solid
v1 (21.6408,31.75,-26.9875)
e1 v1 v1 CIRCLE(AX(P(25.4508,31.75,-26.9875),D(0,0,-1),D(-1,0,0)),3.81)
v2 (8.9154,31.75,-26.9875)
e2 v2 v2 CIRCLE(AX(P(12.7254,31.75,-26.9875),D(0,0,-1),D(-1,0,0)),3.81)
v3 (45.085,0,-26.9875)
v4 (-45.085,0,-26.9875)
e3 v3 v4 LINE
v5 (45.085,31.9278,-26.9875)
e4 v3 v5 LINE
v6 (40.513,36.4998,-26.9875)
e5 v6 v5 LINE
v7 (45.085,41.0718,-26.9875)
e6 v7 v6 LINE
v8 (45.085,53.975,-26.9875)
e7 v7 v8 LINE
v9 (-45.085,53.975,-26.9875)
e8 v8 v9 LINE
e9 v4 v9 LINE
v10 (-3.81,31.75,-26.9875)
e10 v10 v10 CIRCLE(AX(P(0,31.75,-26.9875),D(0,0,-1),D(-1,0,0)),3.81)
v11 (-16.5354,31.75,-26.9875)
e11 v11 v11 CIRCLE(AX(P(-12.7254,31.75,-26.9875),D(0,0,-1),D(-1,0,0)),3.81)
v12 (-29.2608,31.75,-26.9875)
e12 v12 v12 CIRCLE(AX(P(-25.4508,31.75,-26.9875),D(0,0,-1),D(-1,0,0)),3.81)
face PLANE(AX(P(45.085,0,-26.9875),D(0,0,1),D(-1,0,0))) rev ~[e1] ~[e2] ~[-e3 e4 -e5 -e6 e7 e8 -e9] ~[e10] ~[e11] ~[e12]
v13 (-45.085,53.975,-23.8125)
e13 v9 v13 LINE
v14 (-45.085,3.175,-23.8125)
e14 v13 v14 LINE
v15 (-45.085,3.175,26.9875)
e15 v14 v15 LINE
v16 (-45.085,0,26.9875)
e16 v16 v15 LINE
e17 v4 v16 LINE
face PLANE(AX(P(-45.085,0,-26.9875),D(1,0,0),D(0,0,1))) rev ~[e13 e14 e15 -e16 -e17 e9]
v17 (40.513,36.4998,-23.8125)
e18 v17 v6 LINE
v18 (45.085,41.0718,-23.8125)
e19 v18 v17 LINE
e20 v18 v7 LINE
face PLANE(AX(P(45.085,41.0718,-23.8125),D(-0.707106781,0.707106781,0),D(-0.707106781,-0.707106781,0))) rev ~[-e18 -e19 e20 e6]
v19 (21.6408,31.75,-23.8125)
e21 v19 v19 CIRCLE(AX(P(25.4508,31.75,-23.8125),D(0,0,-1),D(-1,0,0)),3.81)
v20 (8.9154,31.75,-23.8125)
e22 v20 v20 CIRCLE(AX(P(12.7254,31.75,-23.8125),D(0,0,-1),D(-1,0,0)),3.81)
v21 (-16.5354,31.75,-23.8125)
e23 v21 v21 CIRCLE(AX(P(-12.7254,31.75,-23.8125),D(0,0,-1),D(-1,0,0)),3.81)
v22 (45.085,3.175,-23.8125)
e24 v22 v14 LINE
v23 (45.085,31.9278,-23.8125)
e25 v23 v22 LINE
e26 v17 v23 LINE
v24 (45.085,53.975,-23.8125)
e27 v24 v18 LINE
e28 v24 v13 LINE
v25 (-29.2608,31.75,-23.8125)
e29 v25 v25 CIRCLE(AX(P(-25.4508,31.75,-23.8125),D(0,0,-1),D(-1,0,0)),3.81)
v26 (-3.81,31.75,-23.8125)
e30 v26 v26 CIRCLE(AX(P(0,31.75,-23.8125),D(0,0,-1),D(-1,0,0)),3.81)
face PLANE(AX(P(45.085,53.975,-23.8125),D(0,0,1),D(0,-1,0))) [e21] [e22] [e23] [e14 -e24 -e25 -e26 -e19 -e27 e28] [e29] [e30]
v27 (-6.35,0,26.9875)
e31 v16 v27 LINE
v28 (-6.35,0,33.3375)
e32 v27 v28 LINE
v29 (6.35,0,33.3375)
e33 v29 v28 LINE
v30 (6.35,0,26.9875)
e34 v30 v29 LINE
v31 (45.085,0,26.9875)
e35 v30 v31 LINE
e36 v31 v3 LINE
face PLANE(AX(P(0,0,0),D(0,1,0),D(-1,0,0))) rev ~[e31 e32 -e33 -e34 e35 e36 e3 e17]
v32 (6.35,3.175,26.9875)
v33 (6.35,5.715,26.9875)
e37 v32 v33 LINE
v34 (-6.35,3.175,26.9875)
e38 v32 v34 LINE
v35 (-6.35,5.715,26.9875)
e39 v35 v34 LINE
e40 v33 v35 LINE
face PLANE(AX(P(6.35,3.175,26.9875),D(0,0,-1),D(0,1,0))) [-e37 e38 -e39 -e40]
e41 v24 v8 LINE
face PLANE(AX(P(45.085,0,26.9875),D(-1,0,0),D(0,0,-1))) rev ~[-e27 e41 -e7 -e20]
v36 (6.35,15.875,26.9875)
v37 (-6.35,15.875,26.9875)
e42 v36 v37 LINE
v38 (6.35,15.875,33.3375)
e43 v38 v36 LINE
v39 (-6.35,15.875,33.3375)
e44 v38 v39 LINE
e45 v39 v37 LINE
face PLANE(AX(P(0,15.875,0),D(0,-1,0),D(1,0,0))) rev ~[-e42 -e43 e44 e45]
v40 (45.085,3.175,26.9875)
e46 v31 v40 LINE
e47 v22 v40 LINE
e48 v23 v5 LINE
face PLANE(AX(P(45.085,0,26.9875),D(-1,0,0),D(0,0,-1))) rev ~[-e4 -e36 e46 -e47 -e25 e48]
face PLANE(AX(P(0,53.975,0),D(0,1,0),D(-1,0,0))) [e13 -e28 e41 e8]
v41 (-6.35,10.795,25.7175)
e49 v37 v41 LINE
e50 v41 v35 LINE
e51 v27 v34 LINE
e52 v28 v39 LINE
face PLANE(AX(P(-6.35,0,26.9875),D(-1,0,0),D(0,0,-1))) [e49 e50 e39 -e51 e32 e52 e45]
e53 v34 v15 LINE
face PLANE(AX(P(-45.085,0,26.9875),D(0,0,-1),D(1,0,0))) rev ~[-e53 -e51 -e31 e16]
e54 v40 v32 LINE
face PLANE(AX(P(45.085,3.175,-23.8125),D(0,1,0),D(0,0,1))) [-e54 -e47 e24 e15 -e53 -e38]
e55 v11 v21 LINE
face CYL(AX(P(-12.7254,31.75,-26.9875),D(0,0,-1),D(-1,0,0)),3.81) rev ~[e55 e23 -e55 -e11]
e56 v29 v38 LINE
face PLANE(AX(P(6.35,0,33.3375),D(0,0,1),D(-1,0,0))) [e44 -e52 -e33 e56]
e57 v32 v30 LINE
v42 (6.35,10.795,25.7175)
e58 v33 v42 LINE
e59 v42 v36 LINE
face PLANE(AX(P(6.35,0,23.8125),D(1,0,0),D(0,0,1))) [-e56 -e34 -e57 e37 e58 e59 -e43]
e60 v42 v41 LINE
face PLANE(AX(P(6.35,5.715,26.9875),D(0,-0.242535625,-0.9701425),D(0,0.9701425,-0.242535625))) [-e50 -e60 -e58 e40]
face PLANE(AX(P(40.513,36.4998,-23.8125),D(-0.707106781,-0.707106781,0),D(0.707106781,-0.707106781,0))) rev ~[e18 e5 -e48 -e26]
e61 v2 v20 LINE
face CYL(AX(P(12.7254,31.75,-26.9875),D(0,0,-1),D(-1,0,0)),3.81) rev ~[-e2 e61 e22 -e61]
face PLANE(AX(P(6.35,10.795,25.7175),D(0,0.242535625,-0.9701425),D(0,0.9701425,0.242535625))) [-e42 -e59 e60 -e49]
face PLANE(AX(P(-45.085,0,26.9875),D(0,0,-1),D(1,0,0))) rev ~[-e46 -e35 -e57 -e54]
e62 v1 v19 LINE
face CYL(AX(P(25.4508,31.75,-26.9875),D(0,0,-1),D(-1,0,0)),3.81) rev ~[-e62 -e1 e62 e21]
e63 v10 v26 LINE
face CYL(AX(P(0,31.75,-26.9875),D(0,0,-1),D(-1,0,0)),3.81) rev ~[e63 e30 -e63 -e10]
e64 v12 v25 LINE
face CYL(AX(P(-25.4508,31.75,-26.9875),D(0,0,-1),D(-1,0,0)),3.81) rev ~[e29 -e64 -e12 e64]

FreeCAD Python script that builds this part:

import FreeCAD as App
import Part
import Sketcher

V = App.Vector
Q = App.Units.Quantity


def add_polygon(sketch, points):
    """Adds a closed chain of lines whose ends are joined by coincident constraints."""
    first, n = sketch.GeometryCount, len(points)
    for a, b in zip(points, points[1:] + points[:1]):
        sketch.addGeometry(Part.LineSegment(App.Vector(*a, 0), App.Vector(*b, 0)), False)
    for i in range(n):
        sketch.addConstraint(Sketcher.Constraint("Coincident", first + i, 2, first + (i + 1) % n, 1))

doc = App.newDocument("Part")
params = doc.addObject("Spreadsheet::Sheet", "Params")
for row, (alias, value) in enumerate([
    ("sketch1_width", "3.55 in"),
    ("sketch1_height", "2.125 in"),
    ("pad1_length", "2.125 in"),
    ("sketch2_width", "2 in"),
    ("sketch3_width", "0.5 in"),
    ("sketch3_height", "0.375 in"),
    ("pad2_length", "0.625 in"),
    ("sketch4_width", "0.5 in"),
    ("sketch4_height", "0.125 in"),
    ("pocket2_length", "0.625 in"),
    ("sketch5_diameter", "0.3 in"),
    ("pocket3_length", "0.625 in"),
    ("pocket4_length", "1 in"),
], start=1):
    params.set(f"A{row}", alias)
    params.set(f"B{row}", "=" + value)
    params.setAlias(f"B{row}", alias)

body = doc.addObject("PartDesign::Body", "Body")

# Sketch on XZ plane
sketch1 = doc.addObject("Sketcher::SketchObject", "Sketch")
body.addObject(sketch1)
sketch1.AttachmentSupport = (doc.XZ_Plane, [""])
sketch1.MapMode = "FlatFace"
add_polygon(sketch1, [(-45, -27), (-45, 27), (45, 27), (45, -27)])  # lines 0-3
sketch1.addConstraint(Sketcher.Constraint("Vertical", 0))
sketch1.addConstraint(Sketcher.Constraint("Horizontal", 1))
sketch1.addConstraint(Sketcher.Constraint("Vertical", 2))
sketch1.addConstraint(Sketcher.Constraint("Horizontal", 3))
sketch1.addConstraint(Sketcher.Constraint("Symmetric", 0, 2, 2, 2, -1, 1))
sketch1.addConstraint(Sketcher.Constraint("DistanceX", 1, 1, 1, 2, Q("3.55 in")))
sketch1.addConstraint(Sketcher.Constraint("DistanceY", 0, 1, 0, 2, Q("2.125 in")))
sketch1.setExpression("Constraints[9]", "Params.sketch1_width")
sketch1.setExpression("Constraints[10]", "Params.sketch1_height")
pad1 = doc.addObject("PartDesign::Pad", "Pad")
body.addObject(pad1)
pad1.Profile = sketch1
pad1.setExpression("Length", "Params.pad1_length")
pad1.Reversed = True

# Sketch on YZ plane
sketch2 = doc.addObject("Sketcher::SketchObject", "Sketch001")
body.addObject(sketch2)
sketch2.AttachmentSupport = (doc.YZ_Plane, [""])
sketch2.MapMode = "FlatFace"
sketch2.AttachmentOffset = App.Placement(V(0, 0, 1.775 * 25.4), App.Rotation())
add_polygon(sketch2, [(54, -24), (54, 27), (3, 27), (3, -24)])  # lines 0-3
sketch2.addConstraint(Sketcher.Constraint("Vertical", 0))
sketch2.addConstraint(Sketcher.Constraint("Horizontal", 1))
sketch2.addConstraint(Sketcher.Constraint("Vertical", 2))
sketch2.addConstraint(Sketcher.Constraint("Horizontal", 3))
sketch2.addConstraint(Sketcher.Constraint("Equal", 3, 0))
sketch2.addConstraint(Sketcher.Constraint("DistanceX", 1, 2, 1, 1, Q("2 in")))
sketch2.addConstraint(Sketcher.Constraint("DistanceX", -1, 1, 1, 2, Q("0.125 in")))
sketch2.addConstraint(Sketcher.Constraint("DistanceY", -1, 1, 0, 2, Q("1.0625 in")))
sketch2.setExpression("Constraints[9]", "Params.sketch2_width")
pocket1 = doc.addObject("PartDesign::Pocket", "Pocket")
body.addObject(pocket1)
pocket1.Profile = sketch2
pocket1.Type = "ThroughAll"

# Sketch on XZ plane
sketch3 = doc.addObject("Sketcher::SketchObject", "Sketch002")
body.addObject(sketch3)
sketch3.AttachmentSupport = (doc.XZ_Plane, [""])
sketch3.MapMode = "FlatFace"
add_polygon(sketch3, [(-6, 24), (6, 24), (6, 33), (-6, 33)])  # lines 0-3
sketch3.addConstraint(Sketcher.Constraint("Horizontal", 0))
sketch3.addConstraint(Sketcher.Constraint("Vertical", 1))
sketch3.addConstraint(Sketcher.Constraint("Horizontal", 2))
sketch3.addConstraint(Sketcher.Constraint("Vertical", 3))
sketch3.addConstraint(Sketcher.Constraint("DistanceX", 0, 1, 0, 2, Q("0.5 in")))
sketch3.addConstraint(Sketcher.Constraint("DistanceY", 1, 1, 1, 2, Q("0.375 in")))
sketch3.addConstraint(Sketcher.Constraint("DistanceX", -1, 1, 0, 2, Q("0.25 in")))
sketch3.addConstraint(Sketcher.Constraint("DistanceY", -1, 1, 0, 2, Q("0.9375 in")))
sketch3.setExpression("Constraints[8]", "Params.sketch3_width")
sketch3.setExpression("Constraints[9]", "Params.sketch3_height")
pad2 = doc.addObject("PartDesign::Pad", "Pad001")
body.addObject(pad2)
pad2.Profile = sketch3
pad2.setExpression("Length", "Params.pad2_length")
pad2.Reversed = True

# Sketch on YZ plane
sketch4 = doc.addObject("Sketcher::SketchObject", "Sketch003")
body.addObject(sketch4)
sketch4.AttachmentSupport = (doc.YZ_Plane, [""])
sketch4.MapMode = "FlatFace"
sketch4.AttachmentOffset = App.Placement(V(0, 0, 0.25 * 25.4), App.Rotation())
add_polygon(sketch4, [(3.2, 27), (3.2, 23.8), (15.9, 23.8), (15.9, 27), (10.8, 25.7), (5.7, 27)])  # lines 0-5
sketch4.addConstraint(Sketcher.Constraint("Vertical", 0))
sketch4.addConstraint(Sketcher.Constraint("Horizontal", 1))
sketch4.addConstraint(Sketcher.Constraint("Vertical", 2))
sketch4.addConstraint(Sketcher.Constraint("Horizontal", 5))
sketch4.addConstraint(Sketcher.Constraint("Horizontal", 2, 2, 4, 2))
sketch4.addConstraint(Sketcher.Constraint("Equal", 3, 4))
sketch4.addConstraint(Sketcher.Constraint("DistanceX", 4, 2, 2, 2, Q("0.4 in")))
sketch4.addConstraint(Sketcher.Constraint("DistanceY", 3, 2, 2, 2, Q("0.05 in")))
sketch4.addConstraint(Sketcher.Constraint("DistanceX", 1, 1, 1, 2, Q("0.5 in")))
sketch4.addConstraint(Sketcher.Constraint("DistanceY", 0, 2, 0, 1, Q("0.125 in")))
sketch4.addConstraint(Sketcher.Constraint("DistanceX", -1, 1, 0, 2, Q("0.125 in")))
sketch4.addConstraint(Sketcher.Constraint("DistanceY", -1, 1, 0, 2, Q("0.9375 in")))
sketch4.setExpression("Constraints[14]", "Params.sketch4_width")
sketch4.setExpression("Constraints[15]", "Params.sketch4_height")
pocket2 = doc.addObject("PartDesign::Pocket", "Pocket001")
body.addObject(pocket2)
pocket2.Profile = sketch4
pocket2.setExpression("Length", "Params.pocket2_length")

# Sketch on XY plane
sketch5 = doc.addObject("Sketcher::SketchObject", "Sketch004")
body.addObject(sketch5)
sketch5.AttachmentSupport = (doc.XY_Plane, [""])
sketch5.MapMode = "FlatFace"
sketch5.AttachmentOffset = App.Placement(V(0, 0, -1.0625 * 25.4), App.Rotation())
sketch5.addGeometry(Part.Circle(V(25.5, 31.8, 0), V(0, 0, 1), 3.8), False)
sketch5.addGeometry(Part.Circle(V(12.7, 31.8, 0), V(0, 0, 1), 3.8), False)
sketch5.addGeometry(Part.Circle(V(0, 31.8, 0), V(0, 0, 1), 3.8), False)
sketch5.addGeometry(Part.Circle(V(-12.7, 31.8, 0), V(0, 0, 1), 3.8), False)
sketch5.addGeometry(Part.Circle(V(-25.5, 31.8, 0), V(0, 0, 1), 3.8), False)
sketch5.addConstraint(Sketcher.Constraint("Equal", 0, 1))
sketch5.addConstraint(Sketcher.Constraint("Equal", 1, 2))
sketch5.addConstraint(Sketcher.Constraint("Equal", 2, 3))
sketch5.addConstraint(Sketcher.Constraint("Equal", 3, 4))
sketch5.addConstraint(Sketcher.Constraint("Symmetric", 1, 3, 3, 3, -2))
sketch5.addConstraint(Sketcher.Constraint("Symmetric", 0, 3, 4, 3, -2))
sketch5.addConstraint(Sketcher.Constraint("PointOnObject", 2, 3, -2))
sketch5.addConstraint(Sketcher.Constraint("Horizontal", 0, 3, 1, 3))
sketch5.addConstraint(Sketcher.Constraint("Horizontal", 1, 3, 2, 3))
sketch5.addConstraint(Sketcher.Constraint("Diameter", 0, Q("0.3 in")))
sketch5.addConstraint(Sketcher.Constraint("DistanceX", -1, 1, 1, 3, Q("0.501 in")))
sketch5.addConstraint(Sketcher.Constraint("DistanceX", 1, 3, 0, 3, Q("0.501 in")))
sketch5.addConstraint(Sketcher.Constraint("DistanceY", -1, 1, 0, 3, Q("1.25 in")))
sketch5.setExpression("Constraints[9]", "Params.sketch5_diameter")
pocket3 = doc.addObject("PartDesign::Pocket", "Pocket002")
body.addObject(pocket3)
pocket3.Profile = sketch5
pocket3.setExpression("Length", "Params.pocket3_length")
pocket3.Reversed = True

# Sketch on XY plane
sketch6 = doc.addObject("Sketcher::SketchObject", "Sketch005")
body.addObject(sketch6)
sketch6.AttachmentSupport = (doc.XY_Plane, [""])
sketch6.MapMode = "FlatFace"
sketch6.AttachmentOffset = App.Placement(V(0, 0, -0.9375 * 25.4), App.Rotation())
add_polygon(sketch6, [(45, 32), (45, 41), (41, 36)])  # lines 0-2
sketch6.addConstraint(Sketcher.Constraint("Vertical", 0))
sketch6.addConstraint(Sketcher.Constraint("Perpendicular", 1, 2))
sketch6.addConstraint(Sketcher.Constraint("Equal", 1, 2))
sketch6.addConstraint(Sketcher.Constraint("DistanceX", 1, 2, 0, 2, Q("0.18 in")))
sketch6.addConstraint(Sketcher.Constraint("DistanceX", -1, 1, 0, 2, Q("1.775 in")))
sketch6.addConstraint(Sketcher.Constraint("DistanceY", -1, 1, 0, 2, Q("1.617 in")))
pocket4 = doc.addObject("PartDesign::Pocket", "Pocket003")
body.addObject(pocket4)
pocket4.Profile = sketch6
pocket4.setExpression("Length", "Params.pocket4_length")

doc.recompute()
